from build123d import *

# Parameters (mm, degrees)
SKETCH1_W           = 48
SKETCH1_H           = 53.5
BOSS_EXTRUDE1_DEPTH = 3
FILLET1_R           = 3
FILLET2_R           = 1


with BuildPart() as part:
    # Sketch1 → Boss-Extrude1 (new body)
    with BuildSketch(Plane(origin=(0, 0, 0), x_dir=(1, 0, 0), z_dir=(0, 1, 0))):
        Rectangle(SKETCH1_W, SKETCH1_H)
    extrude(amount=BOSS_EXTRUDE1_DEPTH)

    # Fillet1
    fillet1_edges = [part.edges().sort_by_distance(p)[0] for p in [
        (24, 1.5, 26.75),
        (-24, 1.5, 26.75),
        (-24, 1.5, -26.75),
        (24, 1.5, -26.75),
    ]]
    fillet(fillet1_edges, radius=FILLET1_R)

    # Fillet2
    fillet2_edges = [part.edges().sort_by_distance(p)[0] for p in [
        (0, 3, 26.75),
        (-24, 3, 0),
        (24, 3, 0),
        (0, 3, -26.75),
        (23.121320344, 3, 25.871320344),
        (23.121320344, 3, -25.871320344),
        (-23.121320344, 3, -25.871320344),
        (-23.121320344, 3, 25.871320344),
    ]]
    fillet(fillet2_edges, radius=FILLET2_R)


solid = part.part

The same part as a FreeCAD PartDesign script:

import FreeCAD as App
import Part
import Sketcher


def edges_at(feature, points):
    """Names of the edges that pass closest to the given points."""
    edges = feature.Shape.Edges
    near = lambda p: min(range(len(edges)), key=lambda i: edges[i].distToShape(Part.Vertex(*p))[0])
    return sorted({f"Edge{near(p) + 1}" for p in points})

doc = App.newDocument("Part")
body = doc.addObject("PartDesign::Body", "Body")

# Sketch on XZ plane
sketch1 = body.newObject("Sketcher::SketchObject", "Sketch")
sketch1.AttachmentSupport = (doc.getObject("XZ_Plane"), [""])
sketch1.MapMode = "FlatFace"
sketch1.addGeometry([
    Part.LineSegment(App.Vector(-24, -27, 0), App.Vector(-24, 27, 0)),
    Part.LineSegment(App.Vector(-24, 27, 0), App.Vector(24, 27, 0)),
    Part.LineSegment(App.Vector(24, 27, 0), App.Vector(24, -27, 0)),
    Part.LineSegment(App.Vector(24, -27, 0), App.Vector(-24, -27, 0)),
], False)
sketch1.addConstraint([
    Sketcher.Constraint("Coincident", 0, 2, 1, 1),
    Sketcher.Constraint("Coincident", 1, 2, 2, 1),
    Sketcher.Constraint("Coincident", 2, 2, 3, 1),
    Sketcher.Constraint("Coincident", 3, 2, 0, 1),
    Sketcher.Constraint("Vertical", 0),
    Sketcher.Constraint("Horizontal", 1),
    Sketcher.Constraint("Vertical", 2),
    Sketcher.Constraint("Horizontal", 3),
    Sketcher.Constraint("Symmetric", 0, 2, 2, 2, -1, 1),
    Sketcher.Constraint("DistanceX", 1, 1, 1, 2, 48.0),
    Sketcher.Constraint("DistanceY", 0, 1, 0, 2, 53.5),
])
pad1 = body.newObject("PartDesign::Pad", "Pad")
pad1.Profile = sketch1
pad1.Length = 3
pad1.Reversed = True
doc.recompute()

fillet = body.newObject("PartDesign::Fillet", "Fillet")
fillet.Base = (pad1, edges_at(pad1, [
    (24, 1.5, 26.75),
    (-24, 1.5, 26.75),
    (-24, 1.5, -26.75),
    (24, 1.5, -26.75),
]))
fillet.Radius = 3
doc.recompute()

fillet2 = body.newObject("PartDesign::Fillet", "Fillet001")
fillet2.Base = (fillet, edges_at(fillet, [
    (0, 3, 26.75),
    (-24, 3, 0),
    (24, 3, 0),
    (0, 3, -26.75),
    (23.121, 3, 25.871),
    (23.121, 3, -25.871),
    (-23.121, 3, -25.871),
    (-23.121, 3, 25.871),
]))
fillet2.Radius = 1

doc.recompute()
